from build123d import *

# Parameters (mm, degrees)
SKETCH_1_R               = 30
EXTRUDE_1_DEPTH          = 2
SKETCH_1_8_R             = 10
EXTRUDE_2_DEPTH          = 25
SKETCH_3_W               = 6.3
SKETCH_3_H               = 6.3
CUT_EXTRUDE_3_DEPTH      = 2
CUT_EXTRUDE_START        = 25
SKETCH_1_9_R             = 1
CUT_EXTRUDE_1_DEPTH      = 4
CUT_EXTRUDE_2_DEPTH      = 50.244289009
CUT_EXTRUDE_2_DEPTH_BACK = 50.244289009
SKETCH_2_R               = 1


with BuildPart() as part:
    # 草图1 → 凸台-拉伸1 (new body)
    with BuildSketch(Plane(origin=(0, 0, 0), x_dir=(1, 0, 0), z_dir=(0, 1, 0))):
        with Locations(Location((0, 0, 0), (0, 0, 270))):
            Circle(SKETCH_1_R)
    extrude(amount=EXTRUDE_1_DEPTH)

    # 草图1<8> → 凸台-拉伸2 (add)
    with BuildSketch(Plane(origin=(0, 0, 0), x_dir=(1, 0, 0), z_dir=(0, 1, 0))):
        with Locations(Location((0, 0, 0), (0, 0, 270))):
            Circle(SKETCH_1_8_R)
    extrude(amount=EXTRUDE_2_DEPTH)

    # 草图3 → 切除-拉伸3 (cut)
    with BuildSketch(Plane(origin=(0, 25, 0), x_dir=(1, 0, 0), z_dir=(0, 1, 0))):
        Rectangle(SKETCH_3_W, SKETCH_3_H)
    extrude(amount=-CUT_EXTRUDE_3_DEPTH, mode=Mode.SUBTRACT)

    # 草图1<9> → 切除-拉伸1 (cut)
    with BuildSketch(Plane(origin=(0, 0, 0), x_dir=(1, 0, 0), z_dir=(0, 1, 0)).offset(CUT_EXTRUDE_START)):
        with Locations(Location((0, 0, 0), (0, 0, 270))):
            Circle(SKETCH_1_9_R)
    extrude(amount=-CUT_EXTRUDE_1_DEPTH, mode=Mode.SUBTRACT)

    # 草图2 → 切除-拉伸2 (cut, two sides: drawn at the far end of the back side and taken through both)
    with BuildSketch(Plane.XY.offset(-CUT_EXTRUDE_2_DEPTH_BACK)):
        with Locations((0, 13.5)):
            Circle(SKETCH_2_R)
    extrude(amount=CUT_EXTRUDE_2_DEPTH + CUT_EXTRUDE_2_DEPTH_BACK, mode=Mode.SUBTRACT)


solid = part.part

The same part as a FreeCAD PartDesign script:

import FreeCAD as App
import Part
import Sketcher
Q = App.Units.Quantity

doc = App.newDocument("Part")
body = doc.addObject("PartDesign::Body", "Body")

sketch1 = body.newObject("Sketcher::SketchObject", "Sketch")
sketch1.AttachmentSupport = (doc.getObject("XZ_Plane"), [""])
sketch1.MapMode = "FlatFace"
sketch1.addGeometry(Part.Circle(App.Vector(0, 0, 0), App.Vector(0, 0, 1), 30), False)
sketch1.addConstraint([
    Sketcher.Constraint("Coincident", 0, 3, -1, 1),
    Sketcher.Constraint("Diameter", 0, Q("60 mm")),
])
pad1 = body.newObject("PartDesign::Pad", "Pad")
pad1.Profile = sketch1
pad1.Length = 2
pad1.Reversed = True

sketch2 = body.newObject("Sketcher::SketchObject", "Sketch001")
sketch2.AttachmentSupport = (doc.getObject("XZ_Plane"), [""])
sketch2.MapMode = "FlatFace"
sketch2.addGeometry(Part.Circle(App.Vector(0, 0, 0), App.Vector(0, 0, 1), 10), False)
sketch2.addConstraint([
    Sketcher.Constraint("Coincident", 0, 3, -1, 1),
    Sketcher.Constraint("Diameter", 0, Q("20 mm")),
])
pad2 = body.newObject("PartDesign::Pad", "Pad001")
pad2.Profile = sketch2
pad2.Length = 25
pad2.Reversed = True

sketch3 = body.newObject("Sketcher::SketchObject", "Sketch002")
sketch3.AttachmentSupport = (doc.getObject("XZ_Plane"), [""])
sketch3.MapMode = "FlatFace"
sketch3.AttachmentOffset = App.Placement(App.Vector(0, 0, -25), App.Rotation())
sketch3.addGeometry([
    Part.LineSegment(App.Vector(-3, -3, 0), App.Vector(-3, 3, 0)),
    Part.LineSegment(App.Vector(-3, 3, 0), App.Vector(3, 3, 0)),
    Part.LineSegment(App.Vector(3, 3, 0), App.Vector(3, -3, 0)),
    Part.LineSegment(App.Vector(3, -3, 0), App.Vector(-3, -3, 0)),
], False)
sketch3.addConstraint([
    Sketcher.Constraint("Coincident", 0, 2, 1, 1),
    Sketcher.Constraint("Coincident", 1, 2, 2, 1),
    Sketcher.Constraint("Coincident", 2, 2, 3, 1),
    Sketcher.Constraint("Coincident", 3, 2, 0, 1),
    Sketcher.Constraint("Vertical", 0),
    Sketcher.Constraint("Horizontal", 1),
    Sketcher.Constraint("Vertical", 2),
    Sketcher.Constraint("Horizontal", 3),
    Sketcher.Constraint("Symmetric", 0, 2, 2, 2, -1, 1),
    Sketcher.Constraint("Equal", 3, 0),
    Sketcher.Constraint("DistanceX", 1, 1, 1, 2, Q("6.3 mm")),
])
pocket1 = body.newObject("PartDesign::Pocket", "Pocket")
pocket1.Profile = sketch3
pocket1.Length = 2
pocket1.Reversed = True

sketch4 = body.newObject("Sketcher::SketchObject", "Sketch003")
sketch4.AttachmentSupport = (doc.getObject("XZ_Plane"), [""])
sketch4.MapMode = "FlatFace"
sketch4.AttachmentOffset = App.Placement(App.Vector(0, 0, -25), App.Rotation())
sketch4.addGeometry(Part.Circle(App.Vector(0, 0, 0), App.Vector(0, 0, 1), 1), False)
sketch4.addConstraint([
    Sketcher.Constraint("Coincident", 0, 3, -1, 1),
    Sketcher.Constraint("Diameter", 0, Q("2 mm")),
])
pocket2 = body.newObject("PartDesign::Pocket", "Pocket001")
pocket2.Profile = sketch4
pocket2.Length = 4
pocket2.Reversed = True

sketch5 = body.newObject("Sketcher::SketchObject", "Sketch004")
sketch5.AttachmentSupport = (doc.getObject("XY_Plane"), [""])
sketch5.MapMode = "FlatFace"
sketch5.addGeometry(Part.Circle(App.Vector(0, 13.5, 0), App.Vector(0, 0, 1), 1), False)
sketch5.addConstraint([
    Sketcher.Constraint("PointOnObject", 0, 3, -2),
    Sketcher.Constraint("Diameter", 0, Q("2 mm")),
    Sketcher.Constraint("DistanceY", -1, 1, 0, 3, Q("13.5 mm")),
])
pocket3 = body.newObject("PartDesign::Pocket", "Pocket002")
pocket3.Profile = sketch5
pocket3.Type = "ThroughAll"
pocket3.Midplane = True

doc.recompute()
